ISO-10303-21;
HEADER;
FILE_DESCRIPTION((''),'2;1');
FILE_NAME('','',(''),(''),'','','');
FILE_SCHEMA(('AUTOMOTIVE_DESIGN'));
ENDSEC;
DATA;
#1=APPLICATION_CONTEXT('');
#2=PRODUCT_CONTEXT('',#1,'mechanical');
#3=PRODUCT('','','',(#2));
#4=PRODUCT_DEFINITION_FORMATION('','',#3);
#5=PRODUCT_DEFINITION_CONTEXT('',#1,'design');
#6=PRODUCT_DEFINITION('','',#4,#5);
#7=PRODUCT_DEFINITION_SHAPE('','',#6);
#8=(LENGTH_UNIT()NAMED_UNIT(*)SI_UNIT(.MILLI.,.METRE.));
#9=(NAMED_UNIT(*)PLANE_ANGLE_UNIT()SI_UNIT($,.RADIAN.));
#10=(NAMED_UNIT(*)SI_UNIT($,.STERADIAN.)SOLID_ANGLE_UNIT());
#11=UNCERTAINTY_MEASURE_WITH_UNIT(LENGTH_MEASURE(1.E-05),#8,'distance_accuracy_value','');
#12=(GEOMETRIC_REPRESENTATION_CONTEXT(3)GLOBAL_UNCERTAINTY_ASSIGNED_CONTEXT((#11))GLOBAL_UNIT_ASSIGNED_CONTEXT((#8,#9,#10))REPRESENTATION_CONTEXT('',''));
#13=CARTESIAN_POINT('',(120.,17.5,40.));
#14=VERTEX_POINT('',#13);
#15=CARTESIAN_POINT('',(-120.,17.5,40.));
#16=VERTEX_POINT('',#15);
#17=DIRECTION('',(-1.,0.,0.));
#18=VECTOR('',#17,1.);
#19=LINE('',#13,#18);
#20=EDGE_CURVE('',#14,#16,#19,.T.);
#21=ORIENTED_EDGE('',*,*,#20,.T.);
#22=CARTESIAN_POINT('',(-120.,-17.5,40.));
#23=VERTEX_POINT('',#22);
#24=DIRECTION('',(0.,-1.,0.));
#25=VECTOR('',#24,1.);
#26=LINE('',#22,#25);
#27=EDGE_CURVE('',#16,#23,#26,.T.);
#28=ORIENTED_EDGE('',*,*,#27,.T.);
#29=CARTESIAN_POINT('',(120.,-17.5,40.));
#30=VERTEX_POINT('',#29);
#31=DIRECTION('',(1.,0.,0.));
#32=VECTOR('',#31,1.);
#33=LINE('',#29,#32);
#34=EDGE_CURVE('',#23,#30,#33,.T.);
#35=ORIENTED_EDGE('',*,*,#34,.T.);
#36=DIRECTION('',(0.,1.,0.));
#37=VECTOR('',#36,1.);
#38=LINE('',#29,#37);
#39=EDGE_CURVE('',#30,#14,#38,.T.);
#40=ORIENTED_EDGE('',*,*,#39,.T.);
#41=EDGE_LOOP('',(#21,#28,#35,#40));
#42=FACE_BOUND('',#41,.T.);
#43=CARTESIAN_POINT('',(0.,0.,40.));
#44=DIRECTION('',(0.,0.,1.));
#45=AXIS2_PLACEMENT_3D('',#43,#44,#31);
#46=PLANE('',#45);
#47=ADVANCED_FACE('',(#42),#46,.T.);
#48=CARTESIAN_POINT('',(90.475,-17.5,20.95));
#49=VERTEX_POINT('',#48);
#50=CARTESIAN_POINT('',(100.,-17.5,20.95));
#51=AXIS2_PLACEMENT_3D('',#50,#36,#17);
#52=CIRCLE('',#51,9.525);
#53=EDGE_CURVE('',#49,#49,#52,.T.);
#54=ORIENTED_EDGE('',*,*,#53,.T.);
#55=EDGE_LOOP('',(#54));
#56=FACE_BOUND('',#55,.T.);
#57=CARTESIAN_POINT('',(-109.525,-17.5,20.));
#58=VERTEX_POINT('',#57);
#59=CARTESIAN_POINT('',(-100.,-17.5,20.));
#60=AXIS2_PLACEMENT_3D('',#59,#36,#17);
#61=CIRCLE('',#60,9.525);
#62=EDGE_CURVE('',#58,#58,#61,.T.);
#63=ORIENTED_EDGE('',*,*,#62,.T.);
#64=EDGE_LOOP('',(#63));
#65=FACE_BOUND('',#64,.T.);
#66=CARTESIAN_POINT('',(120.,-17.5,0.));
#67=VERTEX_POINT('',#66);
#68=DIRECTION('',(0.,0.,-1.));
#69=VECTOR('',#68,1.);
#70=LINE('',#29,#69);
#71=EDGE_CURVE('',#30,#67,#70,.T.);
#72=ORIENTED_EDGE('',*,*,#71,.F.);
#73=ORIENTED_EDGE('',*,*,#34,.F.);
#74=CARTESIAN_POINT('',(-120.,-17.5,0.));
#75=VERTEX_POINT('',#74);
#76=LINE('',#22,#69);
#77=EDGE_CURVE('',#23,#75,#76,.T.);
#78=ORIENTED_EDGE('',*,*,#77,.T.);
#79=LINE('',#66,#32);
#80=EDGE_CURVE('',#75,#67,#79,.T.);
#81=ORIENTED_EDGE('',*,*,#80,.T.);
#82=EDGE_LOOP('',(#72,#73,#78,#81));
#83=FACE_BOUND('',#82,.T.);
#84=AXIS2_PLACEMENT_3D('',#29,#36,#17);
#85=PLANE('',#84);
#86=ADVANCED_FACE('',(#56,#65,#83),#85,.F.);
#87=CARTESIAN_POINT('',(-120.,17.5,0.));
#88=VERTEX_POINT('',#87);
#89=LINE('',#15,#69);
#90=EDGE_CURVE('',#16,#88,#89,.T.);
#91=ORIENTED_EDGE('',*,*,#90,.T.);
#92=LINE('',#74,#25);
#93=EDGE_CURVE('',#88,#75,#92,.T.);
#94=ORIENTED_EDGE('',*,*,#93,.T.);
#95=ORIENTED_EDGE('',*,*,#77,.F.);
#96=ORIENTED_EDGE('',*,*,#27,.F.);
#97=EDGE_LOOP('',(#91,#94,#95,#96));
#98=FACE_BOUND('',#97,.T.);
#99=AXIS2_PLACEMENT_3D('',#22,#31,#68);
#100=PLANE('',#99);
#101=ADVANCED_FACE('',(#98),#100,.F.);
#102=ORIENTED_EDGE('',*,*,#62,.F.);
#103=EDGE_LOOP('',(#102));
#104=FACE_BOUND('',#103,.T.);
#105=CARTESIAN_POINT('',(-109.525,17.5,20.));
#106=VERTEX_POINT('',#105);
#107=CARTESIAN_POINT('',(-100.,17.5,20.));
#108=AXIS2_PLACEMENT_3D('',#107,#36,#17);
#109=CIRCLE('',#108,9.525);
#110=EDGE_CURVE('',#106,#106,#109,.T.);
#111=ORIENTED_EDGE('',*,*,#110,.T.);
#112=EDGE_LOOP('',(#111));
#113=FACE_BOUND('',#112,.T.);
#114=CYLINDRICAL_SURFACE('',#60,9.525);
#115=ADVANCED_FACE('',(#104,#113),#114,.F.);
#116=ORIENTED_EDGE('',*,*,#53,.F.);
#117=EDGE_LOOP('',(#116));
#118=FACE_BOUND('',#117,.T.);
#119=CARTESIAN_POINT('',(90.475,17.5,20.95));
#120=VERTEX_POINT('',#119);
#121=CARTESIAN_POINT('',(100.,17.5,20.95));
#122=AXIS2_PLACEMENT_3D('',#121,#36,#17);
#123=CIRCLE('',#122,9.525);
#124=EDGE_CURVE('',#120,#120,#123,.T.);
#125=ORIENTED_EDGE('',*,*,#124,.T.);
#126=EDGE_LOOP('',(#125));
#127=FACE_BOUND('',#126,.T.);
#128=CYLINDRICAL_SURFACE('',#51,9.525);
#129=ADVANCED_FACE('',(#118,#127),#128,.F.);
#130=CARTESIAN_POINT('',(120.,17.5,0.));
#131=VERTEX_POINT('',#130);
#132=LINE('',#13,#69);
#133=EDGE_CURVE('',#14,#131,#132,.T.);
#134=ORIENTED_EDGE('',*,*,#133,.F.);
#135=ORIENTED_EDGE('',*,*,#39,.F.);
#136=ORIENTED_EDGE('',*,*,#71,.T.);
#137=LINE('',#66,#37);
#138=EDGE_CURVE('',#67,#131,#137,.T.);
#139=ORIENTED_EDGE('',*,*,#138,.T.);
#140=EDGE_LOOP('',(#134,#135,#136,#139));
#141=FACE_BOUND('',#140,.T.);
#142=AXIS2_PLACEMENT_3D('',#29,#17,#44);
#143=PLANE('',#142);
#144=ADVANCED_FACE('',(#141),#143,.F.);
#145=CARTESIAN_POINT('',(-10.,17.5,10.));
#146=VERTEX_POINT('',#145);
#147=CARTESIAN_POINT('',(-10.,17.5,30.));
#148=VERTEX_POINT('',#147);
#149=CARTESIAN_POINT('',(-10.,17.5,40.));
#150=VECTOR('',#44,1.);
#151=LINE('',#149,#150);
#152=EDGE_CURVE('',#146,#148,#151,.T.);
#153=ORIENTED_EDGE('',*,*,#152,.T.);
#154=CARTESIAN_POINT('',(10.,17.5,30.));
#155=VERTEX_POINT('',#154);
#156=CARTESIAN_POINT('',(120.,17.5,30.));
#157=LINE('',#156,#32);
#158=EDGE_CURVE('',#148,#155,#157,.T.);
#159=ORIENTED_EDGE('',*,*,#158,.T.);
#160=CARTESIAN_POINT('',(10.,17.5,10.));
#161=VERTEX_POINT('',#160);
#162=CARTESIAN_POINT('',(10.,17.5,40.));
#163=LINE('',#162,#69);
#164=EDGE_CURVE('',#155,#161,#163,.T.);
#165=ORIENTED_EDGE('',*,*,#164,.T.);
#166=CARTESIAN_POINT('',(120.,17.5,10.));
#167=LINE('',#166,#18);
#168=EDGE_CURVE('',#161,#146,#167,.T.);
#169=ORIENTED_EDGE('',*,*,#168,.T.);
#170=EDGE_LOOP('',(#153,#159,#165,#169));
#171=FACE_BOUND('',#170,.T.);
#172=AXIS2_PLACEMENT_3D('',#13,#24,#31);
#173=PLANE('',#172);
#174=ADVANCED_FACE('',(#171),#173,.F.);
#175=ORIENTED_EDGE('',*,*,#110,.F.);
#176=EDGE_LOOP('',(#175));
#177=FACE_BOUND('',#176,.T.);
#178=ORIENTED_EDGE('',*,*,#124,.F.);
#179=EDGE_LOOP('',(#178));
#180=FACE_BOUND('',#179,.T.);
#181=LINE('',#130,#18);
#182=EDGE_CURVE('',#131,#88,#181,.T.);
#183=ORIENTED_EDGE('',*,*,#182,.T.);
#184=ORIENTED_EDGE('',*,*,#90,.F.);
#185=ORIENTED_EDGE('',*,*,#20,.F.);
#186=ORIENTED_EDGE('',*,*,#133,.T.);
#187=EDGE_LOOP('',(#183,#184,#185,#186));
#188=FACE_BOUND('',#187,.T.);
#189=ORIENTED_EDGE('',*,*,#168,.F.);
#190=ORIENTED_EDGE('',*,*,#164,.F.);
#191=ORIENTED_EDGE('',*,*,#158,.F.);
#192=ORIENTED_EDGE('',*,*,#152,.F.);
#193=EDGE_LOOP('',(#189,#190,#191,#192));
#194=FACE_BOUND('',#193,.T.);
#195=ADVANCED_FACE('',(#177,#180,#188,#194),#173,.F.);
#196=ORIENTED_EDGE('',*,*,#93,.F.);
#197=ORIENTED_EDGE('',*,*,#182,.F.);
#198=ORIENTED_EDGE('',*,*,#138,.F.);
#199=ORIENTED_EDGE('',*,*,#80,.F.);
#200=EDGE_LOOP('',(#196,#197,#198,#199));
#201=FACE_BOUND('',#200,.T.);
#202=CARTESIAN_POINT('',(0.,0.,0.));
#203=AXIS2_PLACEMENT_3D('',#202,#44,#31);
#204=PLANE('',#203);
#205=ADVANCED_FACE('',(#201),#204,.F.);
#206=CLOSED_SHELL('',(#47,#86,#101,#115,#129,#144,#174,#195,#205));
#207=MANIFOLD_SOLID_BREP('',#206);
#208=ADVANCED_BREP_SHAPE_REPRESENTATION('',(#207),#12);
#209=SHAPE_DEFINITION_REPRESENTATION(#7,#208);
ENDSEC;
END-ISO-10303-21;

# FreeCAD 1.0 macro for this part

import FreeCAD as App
import Part
import Sketcher
Q = App.Units.Quantity


def add_polygon(sketch, points):
    """Adds a closed chain of lines whose ends are joined by coincident constraints."""
    first, n = sketch.GeometryCount, len(points)
    for a, b in zip(points, points[1:] + points[:1]):
        sketch.addGeometry(Part.LineSegment(App.Vector(*a, 0), App.Vector(*b, 0)), False)
    for i in range(n):
        sketch.addConstraint(Sketcher.Constraint("Coincident", first + i, 2, first + (i + 1) % n, 1))

doc = App.newDocument("Part")
body = doc.addObject("PartDesign::Body", "Body")

# Sketch on XY plane
sketch1 = doc.addObject("Sketcher::SketchObject", "Sketch")
body.addObject(sketch1)
sketch1.AttachmentSupport = (doc.XY_Plane, [""])
sketch1.MapMode = "FlatFace"
add_polygon(sketch1, [(-120, 18), (-120, -18), (120, -18), (120, 18)])  # lines 0-3
sketch1.addConstraint([
    Sketcher.Constraint("Vertical", 0),
    Sketcher.Constraint("Horizontal", 1),
    Sketcher.Constraint("Vertical", 2),
    Sketcher.Constraint("Horizontal", 3),
    Sketcher.Constraint("Symmetric", 0, 2, 2, 2, -1, 1),
    Sketcher.Constraint("DistanceX", 1, 1, 1, 2, Q("240 mm")),
    Sketcher.Constraint("DistanceY", 0, 2, 0, 1, Q("35 mm")),
])
pad1 = doc.addObject("PartDesign::Pad", "Pad")
body.addObject(pad1)
pad1.Profile = sketch1
pad1.Length = 40

# Sketch on XZ plane
sketch2 = doc.addObject("Sketcher::SketchObject", "Sketch001")
body.addObject(sketch2)
sketch2.AttachmentSupport = (doc.XZ_Plane, [""])
sketch2.MapMode = "FlatFace"
sketch2.AttachmentOffset = App.Placement(App.Vector(0, 0, -17.5), App.Rotation())
sketch2.addGeometry([
    Part.Circle(App.Vector(-100, 20, 0), App.Vector(0, 0, 1), 10),
    Part.Circle(App.Vector(100, 21, 0), App.Vector(0, 0, 1), 10),
], False)
sketch2.addConstraint([
    Sketcher.Constraint("Equal", 0, 1),
    Sketcher.Constraint("Diameter", 0, Q("19.05 mm")),
    Sketcher.Constraint("DistanceX", 0, 3, -1, 1, Q("100 mm")),
    Sketcher.Constraint("DistanceY", -1, 1, 0, 3, Q("20 mm")),
    Sketcher.Constraint("DistanceX", -1, 1, 1, 3, Q("100 mm")),
    Sketcher.Constraint("DistanceY", -1, 1, 1, 3, Q("20.95 mm")),
])
pocket1 = doc.addObject("PartDesign::Pocket", "Pocket")
body.addObject(pocket1)
pocket1.Profile = sketch2
pocket1.Type = "ThroughAll"
pocket1.Reversed = True

doc.recompute()
